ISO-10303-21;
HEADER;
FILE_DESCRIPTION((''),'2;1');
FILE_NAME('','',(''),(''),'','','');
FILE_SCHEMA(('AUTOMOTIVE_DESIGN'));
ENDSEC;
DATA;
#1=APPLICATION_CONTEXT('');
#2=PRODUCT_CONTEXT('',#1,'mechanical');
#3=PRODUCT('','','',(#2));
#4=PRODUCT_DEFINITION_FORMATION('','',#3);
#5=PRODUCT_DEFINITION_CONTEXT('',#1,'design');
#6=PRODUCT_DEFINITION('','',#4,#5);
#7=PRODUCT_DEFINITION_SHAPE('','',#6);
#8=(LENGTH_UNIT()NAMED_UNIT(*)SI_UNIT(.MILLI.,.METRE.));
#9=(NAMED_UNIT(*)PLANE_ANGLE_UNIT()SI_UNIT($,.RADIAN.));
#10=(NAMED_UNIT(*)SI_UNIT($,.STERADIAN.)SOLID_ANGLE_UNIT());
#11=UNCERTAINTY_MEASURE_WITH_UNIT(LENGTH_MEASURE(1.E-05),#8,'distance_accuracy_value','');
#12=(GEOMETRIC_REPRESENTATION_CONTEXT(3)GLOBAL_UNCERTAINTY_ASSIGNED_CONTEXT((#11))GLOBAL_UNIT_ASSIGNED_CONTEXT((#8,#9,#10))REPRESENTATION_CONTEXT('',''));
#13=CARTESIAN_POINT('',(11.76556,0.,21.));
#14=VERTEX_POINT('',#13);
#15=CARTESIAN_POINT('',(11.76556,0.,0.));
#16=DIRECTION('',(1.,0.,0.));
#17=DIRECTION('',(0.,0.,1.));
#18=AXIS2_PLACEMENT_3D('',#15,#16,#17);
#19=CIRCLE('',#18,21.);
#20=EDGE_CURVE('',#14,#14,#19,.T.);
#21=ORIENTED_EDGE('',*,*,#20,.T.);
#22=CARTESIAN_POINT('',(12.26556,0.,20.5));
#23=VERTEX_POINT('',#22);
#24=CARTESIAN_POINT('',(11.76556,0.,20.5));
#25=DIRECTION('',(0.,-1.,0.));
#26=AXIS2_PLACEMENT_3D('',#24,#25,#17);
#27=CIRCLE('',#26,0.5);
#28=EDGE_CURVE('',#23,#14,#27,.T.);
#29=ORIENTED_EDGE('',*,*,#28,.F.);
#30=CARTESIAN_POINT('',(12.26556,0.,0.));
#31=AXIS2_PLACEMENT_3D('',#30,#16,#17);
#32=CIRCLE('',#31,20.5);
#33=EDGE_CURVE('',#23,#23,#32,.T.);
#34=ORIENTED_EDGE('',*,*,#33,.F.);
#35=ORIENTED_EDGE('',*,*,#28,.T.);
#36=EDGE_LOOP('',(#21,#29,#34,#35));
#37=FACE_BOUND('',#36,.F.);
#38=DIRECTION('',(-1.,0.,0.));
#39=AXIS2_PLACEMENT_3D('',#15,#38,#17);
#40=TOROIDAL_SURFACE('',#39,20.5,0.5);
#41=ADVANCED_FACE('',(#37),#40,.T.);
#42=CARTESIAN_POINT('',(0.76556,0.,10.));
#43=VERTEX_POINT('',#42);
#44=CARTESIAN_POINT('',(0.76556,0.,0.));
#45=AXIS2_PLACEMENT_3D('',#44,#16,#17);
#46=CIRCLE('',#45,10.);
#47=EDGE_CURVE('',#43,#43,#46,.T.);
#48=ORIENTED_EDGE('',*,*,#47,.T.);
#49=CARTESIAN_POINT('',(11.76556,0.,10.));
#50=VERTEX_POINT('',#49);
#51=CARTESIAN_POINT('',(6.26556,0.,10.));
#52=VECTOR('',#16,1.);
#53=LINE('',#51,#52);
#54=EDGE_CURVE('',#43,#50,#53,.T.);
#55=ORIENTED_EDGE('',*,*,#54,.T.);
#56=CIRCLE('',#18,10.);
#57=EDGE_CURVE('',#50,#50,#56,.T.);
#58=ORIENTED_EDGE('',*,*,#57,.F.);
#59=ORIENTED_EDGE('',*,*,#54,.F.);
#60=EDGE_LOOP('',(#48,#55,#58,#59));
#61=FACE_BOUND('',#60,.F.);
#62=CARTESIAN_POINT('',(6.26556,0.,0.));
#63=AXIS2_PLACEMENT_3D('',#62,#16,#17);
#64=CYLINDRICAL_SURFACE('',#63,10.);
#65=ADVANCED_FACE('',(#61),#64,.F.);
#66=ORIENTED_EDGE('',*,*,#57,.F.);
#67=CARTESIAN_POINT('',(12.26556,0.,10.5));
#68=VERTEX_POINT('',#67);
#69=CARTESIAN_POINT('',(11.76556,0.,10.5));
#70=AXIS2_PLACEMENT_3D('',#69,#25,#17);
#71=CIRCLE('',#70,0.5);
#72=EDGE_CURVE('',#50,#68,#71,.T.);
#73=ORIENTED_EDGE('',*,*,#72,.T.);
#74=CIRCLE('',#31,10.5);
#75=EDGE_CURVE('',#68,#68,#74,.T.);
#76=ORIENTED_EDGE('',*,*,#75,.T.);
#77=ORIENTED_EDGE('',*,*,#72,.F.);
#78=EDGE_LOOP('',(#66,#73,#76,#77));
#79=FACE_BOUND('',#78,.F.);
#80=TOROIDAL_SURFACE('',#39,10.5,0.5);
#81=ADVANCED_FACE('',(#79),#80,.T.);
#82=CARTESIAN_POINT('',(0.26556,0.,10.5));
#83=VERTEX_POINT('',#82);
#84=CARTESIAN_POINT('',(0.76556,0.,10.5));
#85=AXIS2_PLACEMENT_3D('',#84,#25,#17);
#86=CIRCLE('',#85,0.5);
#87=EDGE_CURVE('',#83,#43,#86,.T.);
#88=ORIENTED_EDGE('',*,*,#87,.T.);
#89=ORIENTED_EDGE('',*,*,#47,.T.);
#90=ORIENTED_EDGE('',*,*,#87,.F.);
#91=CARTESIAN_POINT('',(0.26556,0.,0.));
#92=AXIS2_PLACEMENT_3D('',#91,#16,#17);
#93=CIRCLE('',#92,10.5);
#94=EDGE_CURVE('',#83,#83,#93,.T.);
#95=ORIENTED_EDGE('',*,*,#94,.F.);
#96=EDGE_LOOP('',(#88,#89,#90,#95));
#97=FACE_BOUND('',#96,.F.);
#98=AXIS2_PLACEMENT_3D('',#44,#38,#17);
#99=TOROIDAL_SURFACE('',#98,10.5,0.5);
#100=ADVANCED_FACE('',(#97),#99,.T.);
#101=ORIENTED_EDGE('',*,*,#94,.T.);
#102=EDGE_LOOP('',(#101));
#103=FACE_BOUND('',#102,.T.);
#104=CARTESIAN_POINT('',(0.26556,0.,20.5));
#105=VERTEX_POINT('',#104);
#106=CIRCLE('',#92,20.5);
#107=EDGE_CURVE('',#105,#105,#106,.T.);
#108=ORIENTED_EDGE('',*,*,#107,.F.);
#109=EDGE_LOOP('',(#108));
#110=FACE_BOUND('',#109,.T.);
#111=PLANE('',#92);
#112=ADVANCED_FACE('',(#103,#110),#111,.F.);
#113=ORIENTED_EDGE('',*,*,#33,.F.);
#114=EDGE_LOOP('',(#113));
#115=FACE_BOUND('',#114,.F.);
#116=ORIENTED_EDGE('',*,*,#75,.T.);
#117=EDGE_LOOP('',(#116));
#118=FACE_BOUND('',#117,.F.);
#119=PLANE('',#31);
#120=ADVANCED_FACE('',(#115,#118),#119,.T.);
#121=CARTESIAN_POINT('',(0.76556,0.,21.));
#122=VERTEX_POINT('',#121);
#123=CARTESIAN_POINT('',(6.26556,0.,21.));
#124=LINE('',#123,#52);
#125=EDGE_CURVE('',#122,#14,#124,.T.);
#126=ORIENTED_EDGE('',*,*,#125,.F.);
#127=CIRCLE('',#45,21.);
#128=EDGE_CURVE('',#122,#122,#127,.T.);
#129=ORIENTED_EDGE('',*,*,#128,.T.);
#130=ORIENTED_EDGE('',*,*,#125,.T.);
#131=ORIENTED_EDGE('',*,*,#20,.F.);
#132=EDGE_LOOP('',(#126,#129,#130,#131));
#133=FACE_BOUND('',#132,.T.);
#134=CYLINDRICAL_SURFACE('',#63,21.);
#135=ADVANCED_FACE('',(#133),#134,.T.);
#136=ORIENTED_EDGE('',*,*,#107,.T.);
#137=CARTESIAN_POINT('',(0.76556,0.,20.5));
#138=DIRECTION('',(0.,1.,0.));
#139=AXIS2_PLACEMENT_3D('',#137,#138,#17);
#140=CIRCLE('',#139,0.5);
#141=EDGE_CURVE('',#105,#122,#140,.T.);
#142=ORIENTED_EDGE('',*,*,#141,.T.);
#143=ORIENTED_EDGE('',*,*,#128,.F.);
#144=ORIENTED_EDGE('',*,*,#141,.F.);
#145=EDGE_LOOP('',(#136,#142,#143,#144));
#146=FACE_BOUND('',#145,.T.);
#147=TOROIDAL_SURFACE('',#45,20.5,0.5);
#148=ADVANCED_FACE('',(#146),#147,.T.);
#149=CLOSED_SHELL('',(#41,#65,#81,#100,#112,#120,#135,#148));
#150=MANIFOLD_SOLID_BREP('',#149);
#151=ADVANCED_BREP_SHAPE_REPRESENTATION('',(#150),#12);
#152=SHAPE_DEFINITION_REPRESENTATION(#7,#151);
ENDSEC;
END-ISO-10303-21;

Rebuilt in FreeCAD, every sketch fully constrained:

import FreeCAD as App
import Part
import Sketcher
from FreeCAD import Vector
Q = App.Units.Quantity

doc = App.newDocument("Part")
body = doc.addObject("PartDesign::Body", "Body")

# Sketch on XZ plane
sketch1 = doc.addObject("Sketcher::SketchObject", "Sketch")
body.addObject(sketch1)
sketch1.AttachmentSupport = (doc.XZ_Plane, [""])
sketch1.MapMode = "FlatFace"
sketch1.addGeometry([
    Part.LineSegment(Vector(0, 21, 0), Vector(0, 10, 0)),
    Part.LineSegment(Vector(0, 10, 0), Vector(12, 10, 0)),
    Part.LineSegment(Vector(12, 10, 0), Vector(12, 21, 0)),
    Part.LineSegment(Vector(12, 21, 0), Vector(0, 21, 0)),
], False)
sketch1.addConstraint([
    Sketcher.Constraint("Coincident", 0, 2, 1, 1),
    Sketcher.Constraint("Coincident", 1, 2, 2, 1),
    Sketcher.Constraint("Coincident", 2, 2, 3, 1),
    Sketcher.Constraint("Coincident", 3, 2, 0, 1),
    Sketcher.Constraint("Vertical", 0),
    Sketcher.Constraint("Horizontal", 1),
    Sketcher.Constraint("Vertical", 2),
    Sketcher.Constraint("Horizontal", 3),
    Sketcher.Constraint("DistanceX", 1, 1, 1, 2, Q("12 mm")),
    Sketcher.Constraint("DistanceY", 0, 2, 0, 1, Q("11 mm")),
    Sketcher.Constraint("DistanceY", -1, 1, 0, 2, Q("10 mm")),
    Sketcher.Constraint("DistanceX", -1, 1, 0, 2, Q("0.26556 mm")),
])
revolution = doc.addObject("PartDesign::Revolution", "Revolution")
body.addObject(revolution)
revolution.Profile = sketch1
revolution.ReferenceAxis = (sketch1, ["H_Axis"])
revolution.Angle = 360
doc.recompute()

fillet = doc.addObject("PartDesign::Fillet", "Fillet")
body.addObject(fillet)
fillet.Base = (revolution, ["Edge1"])
fillet.UseAllEdges = True
fillet.Radius = 0.5

doc.recompute()
